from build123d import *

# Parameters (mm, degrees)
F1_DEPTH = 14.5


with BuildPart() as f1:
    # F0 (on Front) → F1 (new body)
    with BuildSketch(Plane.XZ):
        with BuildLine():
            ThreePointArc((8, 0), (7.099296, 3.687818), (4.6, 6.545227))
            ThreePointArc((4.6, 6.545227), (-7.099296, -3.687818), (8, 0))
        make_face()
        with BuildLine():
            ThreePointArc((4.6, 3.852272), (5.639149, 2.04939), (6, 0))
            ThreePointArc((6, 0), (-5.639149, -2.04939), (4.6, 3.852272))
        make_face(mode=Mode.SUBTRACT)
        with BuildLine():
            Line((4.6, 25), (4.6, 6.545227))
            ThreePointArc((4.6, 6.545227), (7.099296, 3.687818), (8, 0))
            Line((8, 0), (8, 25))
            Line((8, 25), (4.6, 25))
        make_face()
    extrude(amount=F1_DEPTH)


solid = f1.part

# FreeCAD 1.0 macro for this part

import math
import FreeCAD as App
import Part
import Sketcher
from FreeCAD import Vector
Q = App.Units.Quantity

doc = App.newDocument("Part")
body = doc.addObject("PartDesign::Body", "Body")

# Sketch on XZ plane
sketch1 = body.newObject("Sketcher::SketchObject", "Sketch")
sketch1.AttachmentSupport = (doc.getObject("XZ_Plane"), [""])
sketch1.MapMode = "FlatFace"
sketch1.addGeometry([
    Part.ArcOfCircle(Part.Circle(Vector(0, 0, 0), Vector(0, 0, 1), 8), math.radians(55), math.radians(360)),  # 0
    Part.LineSegment(Vector(8, 0, 0), Vector(8, 25, 0)),  # 1
    Part.LineSegment(Vector(8, 25, 0), Vector(4.6, 25, 0)),  # 2
    Part.LineSegment(Vector(4.6, 25, 0), Vector(4.6, 6.5, 0)),  # 3
    Part.ArcOfCircle(Part.Circle(Vector(0, 0, 0), Vector(0, 0, 1), 6), math.radians(40), math.radians(360)),  # 4
    Part.ArcOfCircle(Part.Circle(Vector(0, 0, 0), Vector(0, 0, 1), 6), math.radians(0), math.radians(40)),  # 5
], False)
sketch1.addConstraint([
    Sketcher.Constraint("Tangent", 0, 2, 1, 1),
    Sketcher.Constraint("Coincident", 1, 2, 2, 1),
    Sketcher.Constraint("Coincident", 2, 2, 3, 1),
    Sketcher.Constraint("Coincident", 3, 2, 0, 1),
    Sketcher.Constraint("Tangent", 4, 1, 5, 2),
    Sketcher.Constraint("Coincident", 5, 1, 4, 2),
    Sketcher.Constraint("Vertical", 1),
    Sketcher.Constraint("Horizontal", 2),
    Sketcher.Constraint("Vertical", 3),
    Sketcher.Constraint("Coincident", 0, 3, -1, 1),
    Sketcher.Constraint("Coincident", 4, 3, -1, 1),
    Sketcher.Constraint("PointOnObject", 5, 1, -1),
    Sketcher.Constraint("Vertical", 3, 2, 4, 1),
    Sketcher.Constraint("Radius", 0, Q("8 mm")),
    Sketcher.Constraint("Radius", 4, Q("6 mm")),
    Sketcher.Constraint("DistanceY", 1, 1, 1, 2, Q("25 mm")),
    Sketcher.Constraint("DistanceX", 2, 2, 2, 1, Q("3.4 mm")),
])
pad1 = body.newObject("PartDesign::Pad", "Pad")
pad1.Profile = sketch1
pad1.Length = 14.5

doc.recompute()
